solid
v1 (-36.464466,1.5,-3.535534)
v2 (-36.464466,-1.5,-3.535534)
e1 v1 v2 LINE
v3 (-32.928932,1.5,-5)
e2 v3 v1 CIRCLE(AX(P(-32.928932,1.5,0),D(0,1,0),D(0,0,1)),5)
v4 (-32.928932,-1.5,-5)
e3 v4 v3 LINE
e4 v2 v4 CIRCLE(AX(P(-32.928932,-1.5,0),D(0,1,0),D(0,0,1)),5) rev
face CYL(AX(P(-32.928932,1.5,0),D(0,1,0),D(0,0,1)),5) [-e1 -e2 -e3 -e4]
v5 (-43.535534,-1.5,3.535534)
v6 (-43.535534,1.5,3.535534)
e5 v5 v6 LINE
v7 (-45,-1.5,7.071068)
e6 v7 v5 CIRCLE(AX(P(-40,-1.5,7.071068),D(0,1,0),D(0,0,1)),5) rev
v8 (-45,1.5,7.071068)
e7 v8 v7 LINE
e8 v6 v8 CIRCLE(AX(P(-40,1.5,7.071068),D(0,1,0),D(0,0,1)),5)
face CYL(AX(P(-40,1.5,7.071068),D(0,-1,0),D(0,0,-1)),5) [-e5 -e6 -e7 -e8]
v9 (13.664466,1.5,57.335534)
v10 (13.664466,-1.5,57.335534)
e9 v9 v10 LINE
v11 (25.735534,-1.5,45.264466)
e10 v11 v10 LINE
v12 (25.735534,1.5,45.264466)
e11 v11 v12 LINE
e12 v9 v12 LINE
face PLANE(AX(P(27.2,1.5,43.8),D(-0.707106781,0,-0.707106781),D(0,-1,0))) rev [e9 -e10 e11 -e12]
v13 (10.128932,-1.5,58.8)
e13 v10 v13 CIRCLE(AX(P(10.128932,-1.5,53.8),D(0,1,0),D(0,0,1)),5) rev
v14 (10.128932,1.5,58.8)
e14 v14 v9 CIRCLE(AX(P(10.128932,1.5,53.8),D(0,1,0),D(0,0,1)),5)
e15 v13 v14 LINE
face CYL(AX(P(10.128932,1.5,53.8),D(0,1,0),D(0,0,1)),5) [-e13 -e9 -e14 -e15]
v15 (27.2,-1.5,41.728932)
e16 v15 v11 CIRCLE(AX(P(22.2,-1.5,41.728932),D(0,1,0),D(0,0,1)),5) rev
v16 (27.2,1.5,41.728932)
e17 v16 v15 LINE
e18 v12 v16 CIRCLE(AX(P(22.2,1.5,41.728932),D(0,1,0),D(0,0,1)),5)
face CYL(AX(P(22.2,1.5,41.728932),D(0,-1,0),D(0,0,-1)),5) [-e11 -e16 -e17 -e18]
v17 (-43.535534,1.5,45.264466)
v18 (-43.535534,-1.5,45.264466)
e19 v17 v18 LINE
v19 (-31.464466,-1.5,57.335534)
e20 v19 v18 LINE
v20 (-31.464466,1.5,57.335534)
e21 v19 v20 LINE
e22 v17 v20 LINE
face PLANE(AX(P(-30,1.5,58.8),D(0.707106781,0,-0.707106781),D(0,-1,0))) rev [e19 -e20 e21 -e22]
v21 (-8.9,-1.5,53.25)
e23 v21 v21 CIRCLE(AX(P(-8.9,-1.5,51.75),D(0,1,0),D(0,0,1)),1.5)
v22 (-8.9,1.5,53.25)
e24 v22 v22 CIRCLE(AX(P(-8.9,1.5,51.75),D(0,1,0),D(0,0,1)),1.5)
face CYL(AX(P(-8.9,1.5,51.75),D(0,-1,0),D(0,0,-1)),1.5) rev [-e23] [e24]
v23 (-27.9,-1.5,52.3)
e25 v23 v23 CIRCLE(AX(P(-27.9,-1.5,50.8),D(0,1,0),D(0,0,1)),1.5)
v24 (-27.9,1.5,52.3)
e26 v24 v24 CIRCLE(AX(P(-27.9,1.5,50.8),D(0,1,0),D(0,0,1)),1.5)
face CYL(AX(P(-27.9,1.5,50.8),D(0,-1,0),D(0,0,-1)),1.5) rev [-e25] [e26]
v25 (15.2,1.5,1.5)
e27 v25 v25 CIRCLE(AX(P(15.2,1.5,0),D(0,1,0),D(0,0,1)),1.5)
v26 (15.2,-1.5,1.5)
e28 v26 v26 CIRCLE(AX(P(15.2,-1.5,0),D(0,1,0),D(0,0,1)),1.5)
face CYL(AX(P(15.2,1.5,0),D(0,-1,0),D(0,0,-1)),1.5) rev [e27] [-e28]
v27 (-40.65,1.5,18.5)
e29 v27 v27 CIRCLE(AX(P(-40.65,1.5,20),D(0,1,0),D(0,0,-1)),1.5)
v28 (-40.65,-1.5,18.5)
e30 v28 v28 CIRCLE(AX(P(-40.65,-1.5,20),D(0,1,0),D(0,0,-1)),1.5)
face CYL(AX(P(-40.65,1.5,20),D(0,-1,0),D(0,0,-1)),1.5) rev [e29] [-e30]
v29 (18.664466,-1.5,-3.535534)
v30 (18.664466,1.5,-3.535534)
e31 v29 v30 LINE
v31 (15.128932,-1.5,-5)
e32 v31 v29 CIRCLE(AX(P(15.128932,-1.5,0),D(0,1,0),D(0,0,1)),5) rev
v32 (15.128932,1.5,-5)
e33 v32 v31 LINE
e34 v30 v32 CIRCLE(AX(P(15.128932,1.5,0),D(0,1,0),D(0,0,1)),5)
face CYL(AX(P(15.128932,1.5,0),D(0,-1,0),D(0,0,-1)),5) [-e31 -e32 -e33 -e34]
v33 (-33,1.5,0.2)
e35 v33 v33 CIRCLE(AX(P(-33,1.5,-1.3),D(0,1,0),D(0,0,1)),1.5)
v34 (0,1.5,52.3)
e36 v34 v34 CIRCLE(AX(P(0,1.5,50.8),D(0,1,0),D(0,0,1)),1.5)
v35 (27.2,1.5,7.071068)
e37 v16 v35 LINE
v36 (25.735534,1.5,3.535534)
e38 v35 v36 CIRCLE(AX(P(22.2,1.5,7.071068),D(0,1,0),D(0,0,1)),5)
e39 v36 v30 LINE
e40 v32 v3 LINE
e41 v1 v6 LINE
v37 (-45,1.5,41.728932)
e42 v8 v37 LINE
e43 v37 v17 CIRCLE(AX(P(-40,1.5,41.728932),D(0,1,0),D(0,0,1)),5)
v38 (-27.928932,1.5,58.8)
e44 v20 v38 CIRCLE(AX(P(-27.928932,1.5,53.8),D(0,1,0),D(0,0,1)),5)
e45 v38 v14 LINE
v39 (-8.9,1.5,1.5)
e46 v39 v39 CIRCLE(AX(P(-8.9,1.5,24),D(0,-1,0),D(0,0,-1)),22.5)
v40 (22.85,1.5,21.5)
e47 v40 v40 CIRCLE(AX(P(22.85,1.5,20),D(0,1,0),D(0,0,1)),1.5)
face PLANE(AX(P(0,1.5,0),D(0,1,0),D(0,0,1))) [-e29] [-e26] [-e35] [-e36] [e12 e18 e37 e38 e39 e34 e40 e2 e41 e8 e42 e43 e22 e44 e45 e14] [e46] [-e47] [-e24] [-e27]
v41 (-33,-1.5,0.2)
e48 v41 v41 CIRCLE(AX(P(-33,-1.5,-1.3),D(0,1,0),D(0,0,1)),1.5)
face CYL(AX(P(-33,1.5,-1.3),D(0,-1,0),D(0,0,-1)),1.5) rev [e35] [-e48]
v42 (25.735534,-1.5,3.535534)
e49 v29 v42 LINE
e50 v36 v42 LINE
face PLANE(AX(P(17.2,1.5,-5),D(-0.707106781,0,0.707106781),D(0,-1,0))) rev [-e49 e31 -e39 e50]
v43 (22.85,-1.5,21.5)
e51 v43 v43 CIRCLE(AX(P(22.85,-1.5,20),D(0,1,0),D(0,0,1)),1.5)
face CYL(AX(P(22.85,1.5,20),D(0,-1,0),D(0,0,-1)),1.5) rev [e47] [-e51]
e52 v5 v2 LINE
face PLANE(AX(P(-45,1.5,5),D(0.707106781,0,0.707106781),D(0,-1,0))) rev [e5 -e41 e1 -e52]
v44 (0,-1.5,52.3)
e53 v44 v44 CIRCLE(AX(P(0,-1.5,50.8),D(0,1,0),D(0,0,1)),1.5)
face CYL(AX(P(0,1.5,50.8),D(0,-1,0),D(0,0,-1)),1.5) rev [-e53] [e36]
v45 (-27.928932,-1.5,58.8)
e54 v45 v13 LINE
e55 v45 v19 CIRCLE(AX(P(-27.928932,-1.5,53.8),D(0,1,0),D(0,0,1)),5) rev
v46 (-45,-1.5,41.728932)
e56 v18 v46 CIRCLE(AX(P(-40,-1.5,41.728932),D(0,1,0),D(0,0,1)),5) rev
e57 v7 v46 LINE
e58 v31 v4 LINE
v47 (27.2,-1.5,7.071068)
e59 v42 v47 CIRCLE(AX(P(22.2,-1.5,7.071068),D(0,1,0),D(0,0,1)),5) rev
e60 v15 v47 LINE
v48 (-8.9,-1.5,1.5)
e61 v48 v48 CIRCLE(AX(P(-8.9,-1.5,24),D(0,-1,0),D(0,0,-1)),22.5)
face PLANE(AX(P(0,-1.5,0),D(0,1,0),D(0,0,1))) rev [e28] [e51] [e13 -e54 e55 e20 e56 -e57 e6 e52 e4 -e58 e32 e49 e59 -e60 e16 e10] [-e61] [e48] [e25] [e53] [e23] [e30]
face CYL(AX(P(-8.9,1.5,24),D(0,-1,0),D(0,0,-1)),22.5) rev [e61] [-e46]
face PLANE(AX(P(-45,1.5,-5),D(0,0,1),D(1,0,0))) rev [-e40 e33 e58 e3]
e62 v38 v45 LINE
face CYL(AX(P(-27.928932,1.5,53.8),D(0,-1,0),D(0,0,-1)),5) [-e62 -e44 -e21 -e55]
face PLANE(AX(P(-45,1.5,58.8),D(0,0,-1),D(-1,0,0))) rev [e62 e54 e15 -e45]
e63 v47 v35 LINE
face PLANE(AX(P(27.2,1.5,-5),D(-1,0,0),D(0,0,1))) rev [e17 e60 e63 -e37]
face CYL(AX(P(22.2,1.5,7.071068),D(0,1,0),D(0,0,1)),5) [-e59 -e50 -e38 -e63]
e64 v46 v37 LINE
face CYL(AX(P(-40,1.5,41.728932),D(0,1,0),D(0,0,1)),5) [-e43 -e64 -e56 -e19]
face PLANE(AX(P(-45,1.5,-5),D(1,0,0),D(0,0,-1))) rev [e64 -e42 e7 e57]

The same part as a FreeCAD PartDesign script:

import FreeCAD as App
import Part
import Sketcher


def edges_at(feature, points):
    """Names of the edges that pass closest to the given points."""
    edges = feature.Shape.Edges
    near = lambda p: min(range(len(edges)), key=lambda i: edges[i].distToShape(Part.Vertex(*p))[0])
    return sorted({f"Edge{near(p) + 1}" for p in points})

doc = App.newDocument("Part")
body = doc.addObject("PartDesign::Body", "Body")

# Sketch on XZ plane
sketch1 = body.newObject("Sketcher::SketchObject", "Sketch")
sketch1.AttachmentSupport = (doc.getObject("XZ_Plane"), [""])
sketch1.MapMode = "FlatFace"
sketch1.addGeometry([
    Part.LineSegment(App.Vector(-45, -5, 0), App.Vector(-45, 58.8, 0)),  # 0
    Part.LineSegment(App.Vector(-45, 58.8, 0), App.Vector(27.2, 58.8, 0)),  # 1
    Part.LineSegment(App.Vector(27.2, 58.8, 0), App.Vector(27.2, -5, 0)),  # 2
    Part.LineSegment(App.Vector(27.2, -5, 0), App.Vector(-45, -5, 0)),  # 3
    Part.Circle(App.Vector(-27.9, 50.8, 0), App.Vector(0, 0, 1), 1.5),  # 4
    Part.Circle(App.Vector(-8.9, 51.8, 0), App.Vector(0, 0, 1), 1.5),  # 5
    Part.Circle(App.Vector(0, 50.8, 0), App.Vector(0, 0, 1), 1.5),  # 6
    Part.Circle(App.Vector(-40.6, 20, 0), App.Vector(0, 0, 1), 1.5),  # 7
    Part.Circle(App.Vector(-33, -1.3, 0), App.Vector(0, 0, 1), 1.5),  # 8
    Part.Circle(App.Vector(22.9, 20, 0), App.Vector(0, 0, 1), 1.5),  # 9
    Part.Circle(App.Vector(15.2, 0, 0), App.Vector(0, 0, 1), 1.5),  # 10
], False)
sketch1.addConstraint([
    Sketcher.Constraint("Coincident", 0, 2, 1, 1),
    Sketcher.Constraint("Coincident", 1, 2, 2, 1),
    Sketcher.Constraint("Coincident", 2, 2, 3, 1),
    Sketcher.Constraint("Coincident", 3, 2, 0, 1),
    Sketcher.Constraint("Vertical", 0),
    Sketcher.Constraint("Horizontal", 1),
    Sketcher.Constraint("Vertical", 2),
    Sketcher.Constraint("Horizontal", 3),
    Sketcher.Constraint("Equal", 4, 5),
    Sketcher.Constraint("Equal", 5, 6),
    Sketcher.Constraint("Equal", 6, 7),
    Sketcher.Constraint("Equal", 7, 8),
    Sketcher.Constraint("Equal", 8, 9),
    Sketcher.Constraint("Equal", 9, 10),
    Sketcher.Constraint("PointOnObject", 6, 3, -2),
    Sketcher.Constraint("PointOnObject", 10, 3, -1),
    Sketcher.Constraint("Horizontal", 4, 3, 6, 3),
    Sketcher.Constraint("Horizontal", 7, 3, 9, 3),
    Sketcher.Constraint("Diameter", 4, 3.0),
    Sketcher.Constraint("DistanceX", 1, 1, 1, 2, 72.2),
    Sketcher.Constraint("DistanceY", 0, 1, 0, 2, 63.8),
    Sketcher.Constraint("DistanceY", -1, 1, 7, 3, 20.0),
    Sketcher.Constraint("DistanceX", 8, 3, -1, 1, 33.0),
    Sketcher.Constraint("DistanceX", 0, 2, -1, 1, 45.0),
    Sketcher.Constraint("DistanceY", 2, 2, -1, 1, 5.0),
    Sketcher.Constraint("DistanceX", 4, 3, 5, 3, 19.0),
    Sketcher.Constraint("DistanceY", 4, 3, 0, 2, 8.0),
    Sketcher.Constraint("DistanceX", 10, 3, 1, 2, 12.0),
    Sketcher.Constraint("DistanceX", 4, 3, -1, 1, 27.9),
    Sketcher.Constraint("DistanceY", 8, 3, -1, 1, 1.3),
    Sketcher.Constraint("DistanceX", 7, 3, 9, 3, 63.5),
    Sketcher.Constraint("DistanceY", -1, 1, 5, 3, 51.75),
    Sketcher.Constraint("DistanceX", 7, 3, -1, 1, 40.65),
])
pad1 = body.newObject("PartDesign::Pad", "Pad")
pad1.Profile = sketch1
pad1.Length = 3
pad1.Midplane = True
doc.recompute()

chamfer = body.newObject("PartDesign::Chamfer", "Chamfer")
chamfer.Base = (pad1, edges_at(pad1, [(27.2, 0, 58.8), (-45, 0, 58.8)]))
chamfer.Size = 15
doc.recompute()

chamfer2 = body.newObject("PartDesign::Chamfer", "Chamfer001")
chamfer2.Base = (chamfer, edges_at(chamfer, [(-45, 0, -5), (27.2, 0, -5)]))
chamfer2.Size = 10

# Sketch on XZ plane
sketch2 = body.newObject("Sketcher::SketchObject", "Sketch001")
sketch2.AttachmentSupport = (doc.getObject("XZ_Plane"), [""])
sketch2.MapMode = "FlatFace"
sketch2.AttachmentOffset = App.Placement(App.Vector(0, 0, 1.5), App.Rotation())
sketch2.addGeometry(Part.Circle(App.Vector(-9, 24, 0), App.Vector(0, 0, 1), 22), False)
sketch2.addConstraint([
    Sketcher.Constraint("Diameter", 0, 45.0),
    Sketcher.Constraint("DistanceY", -1, 1, 0, 3, 24.0),
    Sketcher.Constraint("DistanceX", 0, 3, -1, 1, 8.9),
])
pocket1 = body.newObject("PartDesign::Pocket", "Pocket")
pocket1.Profile = sketch2
pocket1.Type = "ThroughAll"
doc.recompute()

fillet = body.newObject("PartDesign::Fillet", "Fillet")
fillet.Base = (pocket1, edges_at(pocket1, [
    (27.2, 0, 43.8),
    (-30, 0, 58.8),
    (12.2, 0, 58.8),
    (-45, 0, 43.8),
    (-35, 0, -5),
    (17.2, 0, -5),
    (27.2, 0, 5),
    (-45, 0, 5),
]))
fillet.Radius = 5

doc.recompute()
